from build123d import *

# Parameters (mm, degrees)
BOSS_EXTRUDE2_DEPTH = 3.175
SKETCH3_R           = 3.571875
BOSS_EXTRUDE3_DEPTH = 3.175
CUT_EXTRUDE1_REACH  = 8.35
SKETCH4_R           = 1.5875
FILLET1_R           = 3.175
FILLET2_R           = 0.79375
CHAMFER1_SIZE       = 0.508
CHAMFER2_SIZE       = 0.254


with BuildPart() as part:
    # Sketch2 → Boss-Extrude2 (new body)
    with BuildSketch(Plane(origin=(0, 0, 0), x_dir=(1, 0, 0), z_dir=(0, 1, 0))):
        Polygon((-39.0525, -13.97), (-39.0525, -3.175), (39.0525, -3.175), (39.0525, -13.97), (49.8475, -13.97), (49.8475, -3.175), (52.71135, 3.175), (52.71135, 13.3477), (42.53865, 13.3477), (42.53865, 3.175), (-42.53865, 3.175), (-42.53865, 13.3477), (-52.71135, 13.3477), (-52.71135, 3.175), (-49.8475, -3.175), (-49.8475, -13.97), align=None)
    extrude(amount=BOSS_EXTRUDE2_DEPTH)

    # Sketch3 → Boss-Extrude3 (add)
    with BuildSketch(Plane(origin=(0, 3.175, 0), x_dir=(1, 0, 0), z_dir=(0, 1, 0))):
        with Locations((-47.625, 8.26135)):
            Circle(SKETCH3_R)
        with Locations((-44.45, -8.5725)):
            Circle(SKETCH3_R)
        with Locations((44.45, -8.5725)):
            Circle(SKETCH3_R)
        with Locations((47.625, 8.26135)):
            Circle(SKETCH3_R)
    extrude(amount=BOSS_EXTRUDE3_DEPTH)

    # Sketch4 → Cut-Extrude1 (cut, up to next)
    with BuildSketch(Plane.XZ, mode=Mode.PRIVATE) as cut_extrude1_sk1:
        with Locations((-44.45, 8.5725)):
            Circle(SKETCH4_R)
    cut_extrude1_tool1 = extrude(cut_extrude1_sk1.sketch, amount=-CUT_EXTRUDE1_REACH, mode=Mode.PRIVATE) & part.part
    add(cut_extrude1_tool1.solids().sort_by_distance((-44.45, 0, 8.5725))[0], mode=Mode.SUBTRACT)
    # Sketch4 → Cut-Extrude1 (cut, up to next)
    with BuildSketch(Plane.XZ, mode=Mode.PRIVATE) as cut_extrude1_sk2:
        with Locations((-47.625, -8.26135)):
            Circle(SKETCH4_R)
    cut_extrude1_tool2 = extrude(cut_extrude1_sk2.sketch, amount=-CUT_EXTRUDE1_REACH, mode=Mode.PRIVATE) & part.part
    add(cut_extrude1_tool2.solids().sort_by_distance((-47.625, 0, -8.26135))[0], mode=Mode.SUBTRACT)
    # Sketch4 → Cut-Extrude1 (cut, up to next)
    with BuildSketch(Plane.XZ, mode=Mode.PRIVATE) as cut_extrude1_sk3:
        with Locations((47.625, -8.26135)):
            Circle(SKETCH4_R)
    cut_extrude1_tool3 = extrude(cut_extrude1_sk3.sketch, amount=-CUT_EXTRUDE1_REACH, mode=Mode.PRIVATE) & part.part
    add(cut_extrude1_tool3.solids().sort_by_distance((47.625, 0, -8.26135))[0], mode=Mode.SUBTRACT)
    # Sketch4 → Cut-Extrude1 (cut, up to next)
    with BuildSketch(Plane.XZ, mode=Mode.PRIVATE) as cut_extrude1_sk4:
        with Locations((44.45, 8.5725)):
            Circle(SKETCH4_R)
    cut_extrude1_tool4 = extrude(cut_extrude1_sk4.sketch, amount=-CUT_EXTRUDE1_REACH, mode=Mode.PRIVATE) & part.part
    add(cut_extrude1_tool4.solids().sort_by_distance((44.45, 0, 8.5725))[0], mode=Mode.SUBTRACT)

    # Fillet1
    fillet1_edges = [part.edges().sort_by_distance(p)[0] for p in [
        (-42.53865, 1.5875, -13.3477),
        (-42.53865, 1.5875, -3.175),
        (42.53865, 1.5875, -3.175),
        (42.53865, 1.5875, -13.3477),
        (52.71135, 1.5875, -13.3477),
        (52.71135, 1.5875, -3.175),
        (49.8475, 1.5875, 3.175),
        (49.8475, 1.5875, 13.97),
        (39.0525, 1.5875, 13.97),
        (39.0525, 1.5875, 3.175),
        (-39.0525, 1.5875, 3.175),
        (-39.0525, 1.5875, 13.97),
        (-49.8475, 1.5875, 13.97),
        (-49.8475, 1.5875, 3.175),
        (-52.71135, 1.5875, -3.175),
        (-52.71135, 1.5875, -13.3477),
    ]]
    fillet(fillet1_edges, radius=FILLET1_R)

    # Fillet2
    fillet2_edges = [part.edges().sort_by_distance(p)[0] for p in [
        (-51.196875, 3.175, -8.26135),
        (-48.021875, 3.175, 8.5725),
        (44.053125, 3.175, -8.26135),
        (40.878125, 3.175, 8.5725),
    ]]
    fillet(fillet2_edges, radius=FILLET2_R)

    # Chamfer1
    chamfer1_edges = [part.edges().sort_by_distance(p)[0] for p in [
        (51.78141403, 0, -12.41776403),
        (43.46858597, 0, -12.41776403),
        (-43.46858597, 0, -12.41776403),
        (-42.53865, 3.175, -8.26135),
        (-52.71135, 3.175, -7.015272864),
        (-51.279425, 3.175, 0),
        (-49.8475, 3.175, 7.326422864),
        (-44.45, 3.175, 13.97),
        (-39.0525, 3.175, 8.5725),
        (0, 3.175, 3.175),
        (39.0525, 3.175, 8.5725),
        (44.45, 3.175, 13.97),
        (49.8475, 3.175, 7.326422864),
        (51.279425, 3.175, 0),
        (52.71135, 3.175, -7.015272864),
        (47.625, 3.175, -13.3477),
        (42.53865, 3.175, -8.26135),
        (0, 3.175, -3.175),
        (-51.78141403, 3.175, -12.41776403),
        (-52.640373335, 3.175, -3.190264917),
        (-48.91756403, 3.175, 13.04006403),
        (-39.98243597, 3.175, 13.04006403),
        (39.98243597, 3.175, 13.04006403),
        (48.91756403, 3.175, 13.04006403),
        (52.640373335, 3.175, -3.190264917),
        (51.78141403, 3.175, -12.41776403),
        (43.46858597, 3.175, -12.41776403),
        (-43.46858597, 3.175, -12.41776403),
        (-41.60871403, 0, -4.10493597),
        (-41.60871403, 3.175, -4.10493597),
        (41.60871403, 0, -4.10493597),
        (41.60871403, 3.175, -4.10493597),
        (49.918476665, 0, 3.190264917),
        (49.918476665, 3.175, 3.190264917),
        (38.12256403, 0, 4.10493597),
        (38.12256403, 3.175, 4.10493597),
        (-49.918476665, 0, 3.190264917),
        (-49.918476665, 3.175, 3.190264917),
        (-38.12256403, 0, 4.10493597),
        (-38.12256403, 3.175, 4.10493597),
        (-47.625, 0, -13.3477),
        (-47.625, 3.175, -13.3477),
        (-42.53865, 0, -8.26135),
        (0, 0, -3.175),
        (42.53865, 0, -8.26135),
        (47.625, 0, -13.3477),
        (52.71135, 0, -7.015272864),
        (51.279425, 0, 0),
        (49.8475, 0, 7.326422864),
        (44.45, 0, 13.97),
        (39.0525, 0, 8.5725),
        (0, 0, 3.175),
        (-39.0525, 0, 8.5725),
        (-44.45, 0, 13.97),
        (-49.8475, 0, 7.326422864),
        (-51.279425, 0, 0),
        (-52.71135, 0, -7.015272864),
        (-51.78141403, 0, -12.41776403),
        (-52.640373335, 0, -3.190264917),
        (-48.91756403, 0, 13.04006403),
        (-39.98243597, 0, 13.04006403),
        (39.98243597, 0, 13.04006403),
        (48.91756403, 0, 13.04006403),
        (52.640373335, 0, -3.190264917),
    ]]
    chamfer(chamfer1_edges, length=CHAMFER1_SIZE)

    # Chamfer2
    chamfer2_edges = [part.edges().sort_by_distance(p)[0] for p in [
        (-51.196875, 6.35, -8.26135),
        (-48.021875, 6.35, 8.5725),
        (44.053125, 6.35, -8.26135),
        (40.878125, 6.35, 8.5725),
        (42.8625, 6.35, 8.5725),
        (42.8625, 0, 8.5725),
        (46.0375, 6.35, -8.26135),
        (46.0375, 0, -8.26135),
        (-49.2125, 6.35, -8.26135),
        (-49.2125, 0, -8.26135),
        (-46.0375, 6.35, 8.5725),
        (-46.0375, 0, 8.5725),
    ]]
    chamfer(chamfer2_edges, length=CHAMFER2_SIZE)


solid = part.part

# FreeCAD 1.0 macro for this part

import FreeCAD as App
import Part
import Sketcher

V = App.Vector
Q = App.Units.Quantity


def edges_at(feature, points):
    """Names of the edges that pass closest to the given points."""
    edges = feature.Shape.Edges
    near = lambda p: min(range(len(edges)), key=lambda i: edges[i].distToShape(Part.Vertex(*p))[0])
    return sorted({f"Edge{near(p) + 1}" for p in points})

doc = App.newDocument("Part")
body = doc.addObject("PartDesign::Body", "Body")

# Sketch on XZ plane
sketch1 = doc.addObject("Sketcher::SketchObject", "Sketch")
body.addObject(sketch1)
sketch1.AttachmentSupport = (doc.XZ_Plane, [""])
sketch1.MapMode = "FlatFace"
sketch1.addGeometry([
    Part.LineSegment(V(-39.0525, 13.97, 0), V(-39.0525, 3.175, 0)),  # 0
    Part.LineSegment(V(-39.0525, 3.175, 0), V(39.0525, 3.175, 0)),  # 1
    Part.LineSegment(V(39.0525, 3.175, 0), V(39.0525, 13.97, 0)),  # 2
    Part.LineSegment(V(39.0525, 13.97, 0), V(49.8475, 13.97, 0)),  # 3
    Part.LineSegment(V(49.8475, 13.97, 0), V(49.8475, 3.175, 0)),  # 4
    Part.LineSegment(V(49.8475, 3.175, 0), V(52.71135, -3.175, 0)),  # 5
    Part.LineSegment(V(52.71135, -3.175, 0), V(52.71135, -13.3477, 0)),  # 6
    Part.LineSegment(V(52.71135, -13.3477, 0), V(42.53865, -13.3477, 0)),  # 7
    Part.LineSegment(V(42.53865, -13.3477, 0), V(42.53865, -3.175, 0)),  # 8
    Part.LineSegment(V(42.53865, -3.175, 0), V(-42.53865, -3.175, 0)),  # 9
    Part.LineSegment(V(-42.53865, -3.175, 0), V(-42.53865, -13.3477, 0)),  # 10
    Part.LineSegment(V(-42.53865, -13.3477, 0), V(-52.71135, -13.3477, 0)),  # 11
    Part.LineSegment(V(-52.71135, -13.3477, 0), V(-52.71135, -3.175, 0)),  # 12
    Part.LineSegment(V(-52.71135, -3.175, 0), V(-49.8475, 3.175, 0)),  # 13
    Part.LineSegment(V(-49.8475, 3.175, 0), V(-49.8475, 13.97, 0)),  # 14
    Part.LineSegment(V(-49.8475, 13.97, 0), V(-39.0525, 13.97, 0)),  # 15
], False)
sketch1.addConstraint([
    Sketcher.Constraint("Coincident", 0, 2, 1, 1),
    Sketcher.Constraint("Coincident", 1, 2, 2, 1),
    Sketcher.Constraint("Coincident", 2, 2, 3, 1),
    Sketcher.Constraint("Coincident", 3, 2, 4, 1),
    Sketcher.Constraint("Coincident", 4, 2, 5, 1),
    Sketcher.Constraint("Coincident", 5, 2, 6, 1),
    Sketcher.Constraint("Coincident", 6, 2, 7, 1),
    Sketcher.Constraint("Coincident", 7, 2, 8, 1),
    Sketcher.Constraint("Coincident", 8, 2, 9, 1),
    Sketcher.Constraint("Coincident", 9, 2, 10, 1),
    Sketcher.Constraint("Coincident", 10, 2, 11, 1),
    Sketcher.Constraint("Coincident", 11, 2, 12, 1),
    Sketcher.Constraint("Coincident", 12, 2, 13, 1),
    Sketcher.Constraint("Coincident", 13, 2, 14, 1),
    Sketcher.Constraint("Coincident", 14, 2, 15, 1),
    Sketcher.Constraint("Coincident", 15, 2, 0, 1),
    Sketcher.Constraint("Vertical", 0),
    Sketcher.Constraint("Horizontal", 1),
    Sketcher.Constraint("Vertical", 2),
    Sketcher.Constraint("Horizontal", 3),
    Sketcher.Constraint("Vertical", 4),
    Sketcher.Constraint("Vertical", 6),
    Sketcher.Constraint("Horizontal", 7),
    Sketcher.Constraint("Vertical", 8),
    Sketcher.Constraint("Horizontal", 9),
    Sketcher.Constraint("Vertical", 10),
    Sketcher.Constraint("Horizontal", 11),
    Sketcher.Constraint("Vertical", 12),
    Sketcher.Constraint("Vertical", 14),
    Sketcher.Constraint("Horizontal", 15),
    Sketcher.Constraint("Symmetric", 7, 2, 10, 2, -2),
    Sketcher.Constraint("Symmetric", 5, 2, 12, 2, -2),
    Sketcher.Constraint("Symmetric", 4, 2, 13, 2, -2),
    Sketcher.Constraint("Symmetric", 2, 2, 15, 2, -2),
    Sketcher.Constraint("Horizontal", 1, 2, 4, 2),
    Sketcher.Constraint("Horizontal", 5, 2, 8, 2),
    Sketcher.Constraint("Equal", 15, 0),
    Sketcher.Constraint("Equal", 11, 6),
    Sketcher.Constraint("DistanceX", 0, 2, 3, 2, Q("3.5 in")),
    Sketcher.Constraint("DistanceX", 1, 1, 1, 2, Q("3.075 in")),
    Sketcher.Constraint("DistanceY", -1, 1, 2, 2, Q("0.55 in")),
    Sketcher.Constraint("DistanceY", 5, 2, 4, 2, Q("0.25 in")),
    Sketcher.Constraint("DistanceX", 11, 2, 7, 2, Q("3.75 in")),
    Sketcher.Constraint("DistanceX", 7, 2, 7, 1, Q("0.4005 in")),
])
pad1 = doc.addObject("PartDesign::Pad", "Pad")
body.addObject(pad1)
pad1.Profile = sketch1
pad1.Length = Q("0.125 in")
pad1.Reversed = True

# Sketch on XZ plane
sketch2 = doc.addObject("Sketcher::SketchObject", "Sketch001")
body.addObject(sketch2)
sketch2.AttachmentSupport = (doc.XZ_Plane, [""])
sketch2.MapMode = "FlatFace"
sketch2.AttachmentOffset = App.Placement(V(0, 0, -0.125 * 25.4), App.Rotation())
sketch2.addGeometry([
    Part.Circle(V(-47.625, -8.26135, 0), V(0, 0, 1), 3.571875),
    Part.Circle(V(-44.45, 8.5725, 0), V(0, 0, 1), 3.571875),
    Part.Circle(V(44.45, 8.5725, 0), V(0, 0, 1), 3.571875),
    Part.Circle(V(47.625, -8.26135, 0), V(0, 0, 1), 3.571875),
], False)
sketch2.addConstraint([
    Sketcher.Constraint("Equal", 0, 1),
    Sketcher.Constraint("Equal", 1, 2),
    Sketcher.Constraint("Equal", 2, 3),
    Sketcher.Constraint("Symmetric", 1, 3, 2, 3, -2),
    Sketcher.Constraint("Symmetric", 0, 3, 3, 3, -2),
    Sketcher.Constraint("Diameter", 0, Q("0.28125 in")),
    Sketcher.Constraint("DistanceX", 1, 3, 2, 3, Q("3.5 in")),
    Sketcher.Constraint("DistanceX", 0, 3, 3, 3, Q("3.75 in")),
    Sketcher.Constraint("DistanceY", -1, 1, 1, 3, Q("0.3375 in")),
    Sketcher.Constraint("DistanceY", 0, 3, -1, 1, Q("8.26135 mm")),
])
pad2 = doc.addObject("PartDesign::Pad", "Pad001")
body.addObject(pad2)
pad2.Profile = sketch2
pad2.Length = Q("0.125 in")
pad2.Reversed = True

# Sketch on XZ plane
sketch3 = doc.addObject("Sketcher::SketchObject", "Sketch002")
body.addObject(sketch3)
sketch3.AttachmentSupport = (doc.XZ_Plane, [""])
sketch3.MapMode = "FlatFace"
sketch3.addGeometry(Part.Circle(V(-44.45, 8.5725, 0), V(0, 0, 1), 1.5875), False)
sketch3.addConstraint([
    Sketcher.Constraint("Diameter", 0, Q("0.125 in")),
    Sketcher.Constraint("DistanceX", 0, 3, -1, 1, Q("1.75 in")),
    Sketcher.Constraint("DistanceY", -1, 1, 0, 3, Q("0.3375 in")),
])
pocket1 = doc.addObject("PartDesign::Pocket", "Pocket")
body.addObject(pocket1)
pocket1.Profile = sketch3
pocket1.Type = "UpToFirst"

# Sketch on XZ plane
sketch4 = doc.addObject("Sketcher::SketchObject", "Sketch003")
body.addObject(sketch4)
sketch4.AttachmentSupport = (doc.XZ_Plane, [""])
sketch4.MapMode = "FlatFace"
sketch4.addGeometry(Part.Circle(V(-47.625, -8.26135, 0), V(0, 0, 1), 1.5875), False)
sketch4.addConstraint([
    Sketcher.Constraint("Diameter", 0, Q("0.125 in")),
    Sketcher.Constraint("DistanceX", 0, 3, -1, 1, Q("1.875 in")),
    Sketcher.Constraint("DistanceY", 0, 3, -1, 1, Q("8.26135 mm")),
])
pocket2 = doc.addObject("PartDesign::Pocket", "Pocket001")
body.addObject(pocket2)
pocket2.Profile = sketch4
pocket2.Type = "UpToFirst"

# Sketch on XZ plane
sketch5 = doc.addObject("Sketcher::SketchObject", "Sketch004")
body.addObject(sketch5)
sketch5.AttachmentSupport = (doc.XZ_Plane, [""])
sketch5.MapMode = "FlatFace"
sketch5.addGeometry(Part.Circle(V(47.625, -8.26135, 0), V(0, 0, 1), 1.5875), False)
sketch5.addConstraint([
    Sketcher.Constraint("Diameter", 0, Q("0.125 in")),
    Sketcher.Constraint("DistanceX", -1, 1, 0, 3, Q("1.875 in")),
    Sketcher.Constraint("DistanceY", 0, 3, -1, 1, Q("8.26135 mm")),
])
pocket3 = doc.addObject("PartDesign::Pocket", "Pocket002")
body.addObject(pocket3)
pocket3.Profile = sketch5
pocket3.Type = "UpToFirst"

# Sketch on XZ plane
sketch6 = doc.addObject("Sketcher::SketchObject", "Sketch005")
body.addObject(sketch6)
sketch6.AttachmentSupport = (doc.XZ_Plane, [""])
sketch6.MapMode = "FlatFace"
sketch6.addGeometry(Part.Circle(V(44.45, 8.5725, 0), V(0, 0, 1), 1.5875), False)
sketch6.addConstraint([
    Sketcher.Constraint("Diameter", 0, Q("0.125 in")),
    Sketcher.Constraint("DistanceX", -1, 1, 0, 3, Q("1.75 in")),
    Sketcher.Constraint("DistanceY", -1, 1, 0, 3, Q("0.3375 in")),
])
pocket4 = doc.addObject("PartDesign::Pocket", "Pocket003")
body.addObject(pocket4)
pocket4.Profile = sketch6
pocket4.Type = "UpToFirst"
doc.recompute()

fillet = doc.addObject("PartDesign::Fillet", "Fillet")
body.addObject(fillet)
fillet.Base = (pocket4, edges_at(pocket4, [
    (-42.539, 1.587, -13.348),
    (-42.539, 1.587, -3.175),
    (42.539, 1.587, -3.175),
    (42.539, 1.587, -13.348),
    (52.711, 1.587, -13.348),
    (52.711, 1.587, -3.175),
    (49.847, 1.587, 3.175),
    (49.847, 1.587, 13.97),
    (39.053, 1.587, 13.97),
    (39.053, 1.587, 3.175),
    (-39.053, 1.587, 3.175),
    (-39.053, 1.587, 13.97),
    (-49.847, 1.587, 13.97),
    (-49.847, 1.587, 3.175),
    (-52.711, 1.587, -3.175),
    (-52.711, 1.587, -13.348),
]))
fillet.Radius = Q("0.125 in")
doc.recompute()

fillet2 = doc.addObject("PartDesign::Fillet", "Fillet001")
body.addObject(fillet2)
fillet2.Base = (fillet, edges_at(fillet, [
    (-51.197, 3.175, -8.261),
    (-48.022, 3.175, 8.572),
    (44.053, 3.175, -8.261),
    (40.878, 3.175, 8.572),
]))
fillet2.Radius = Q("0.03125 in")
doc.recompute()

chamfer = doc.addObject("PartDesign::Chamfer", "Chamfer")
body.addObject(chamfer)
chamfer.Base = (fillet2, edges_at(fillet2, [
    (51.781, 0, -12.418),
    (43.469, 0, -12.418),
    (-43.469, 0, -12.418),
    (-42.539, 3.175, -8.261),
    (-52.711, 3.175, -7.015),
    (-51.279, 3.175, 0),
    (-49.847, 3.175, 7.326),
    (-44.45, 3.175, 13.97),
    (-39.053, 3.175, 8.572),
    (0, 3.175, 3.175),
    (39.053, 3.175, 8.572),
    (44.45, 3.175, 13.97),
    (49.847, 3.175, 7.326),
    (51.279, 3.175, 0),
    (52.711, 3.175, -7.015),
    (47.625, 3.175, -13.348),
    (42.539, 3.175, -8.261),
    (0, 3.175, -3.175),
    (-51.781, 3.175, -12.418),
    (-52.64, 3.175, -3.19),
    (-48.918, 3.175, 13.04),
    (-39.982, 3.175, 13.04),
    (39.982, 3.175, 13.04),
    (48.918, 3.175, 13.04),
    (52.64, 3.175, -3.19),
    (51.781, 3.175, -12.418),
    (43.469, 3.175, -12.418),
    (-43.469, 3.175, -12.418),
    (-41.609, 0, -4.105),
    (-41.609, 3.175, -4.105),
    (41.609, 0, -4.105),
    (41.609, 3.175, -4.105),
    (49.918, 0, 3.19),
    (49.918, 3.175, 3.19),
    (38.123, 0, 4.105),
    (38.123, 3.175, 4.105),
    (-49.918, 0, 3.19),
    (-49.918, 3.175, 3.19),
    (-38.123, 0, 4.105),
    (-38.123, 3.175, 4.105),
    (-47.625, 0, -13.348),
    (-47.625, 3.175, -13.348),
    (-42.539, 0, -8.261),
    (0, 0, -3.175),
    (42.539, 0, -8.261),
    (47.625, 0, -13.348),
    (52.711, 0, -7.015),
    (51.279, 0, 0),
    (49.847, 0, 7.326),
    (44.45, 0, 13.97),
    (39.053, 0, 8.572),
    (0, 0, 3.175),
    (-39.053, 0, 8.572),
    (-44.45, 0, 13.97),
    (-49.847, 0, 7.326),
    (-51.279, 0, 0),
    (-52.711, 0, -7.015),
    (-51.781, 0, -12.418),
    (-52.64, 0, -3.19),
    (-48.918, 0, 13.04),
    (-39.982, 0, 13.04),
    (39.982, 0, 13.04),
    (48.918, 0, 13.04),
    (52.64, 0, -3.19),
]))
chamfer.Size = Q("0.02 in")
doc.recompute()

chamfer2 = doc.addObject("PartDesign::Chamfer", "Chamfer001")
body.addObject(chamfer2)
chamfer2.Base = (chamfer, edges_at(chamfer, [
    (-51.197, 6.35, -8.261),
    (-48.022, 6.35, 8.572),
    (44.053, 6.35, -8.261),
    (40.878, 6.35, 8.572),
    (42.862, 6.35, 8.572),
    (42.862, 0, 8.572),
    (46.038, 6.35, -8.261),
    (46.038, 0, -8.261),
    (-49.212, 6.35, -8.261),
    (-49.212, 0, -8.261),
    (-46.038, 6.35, 8.572),
    (-46.038, 0, 8.572),
]))
chamfer2.Size = Q("0.01 in")

doc.recompute()
